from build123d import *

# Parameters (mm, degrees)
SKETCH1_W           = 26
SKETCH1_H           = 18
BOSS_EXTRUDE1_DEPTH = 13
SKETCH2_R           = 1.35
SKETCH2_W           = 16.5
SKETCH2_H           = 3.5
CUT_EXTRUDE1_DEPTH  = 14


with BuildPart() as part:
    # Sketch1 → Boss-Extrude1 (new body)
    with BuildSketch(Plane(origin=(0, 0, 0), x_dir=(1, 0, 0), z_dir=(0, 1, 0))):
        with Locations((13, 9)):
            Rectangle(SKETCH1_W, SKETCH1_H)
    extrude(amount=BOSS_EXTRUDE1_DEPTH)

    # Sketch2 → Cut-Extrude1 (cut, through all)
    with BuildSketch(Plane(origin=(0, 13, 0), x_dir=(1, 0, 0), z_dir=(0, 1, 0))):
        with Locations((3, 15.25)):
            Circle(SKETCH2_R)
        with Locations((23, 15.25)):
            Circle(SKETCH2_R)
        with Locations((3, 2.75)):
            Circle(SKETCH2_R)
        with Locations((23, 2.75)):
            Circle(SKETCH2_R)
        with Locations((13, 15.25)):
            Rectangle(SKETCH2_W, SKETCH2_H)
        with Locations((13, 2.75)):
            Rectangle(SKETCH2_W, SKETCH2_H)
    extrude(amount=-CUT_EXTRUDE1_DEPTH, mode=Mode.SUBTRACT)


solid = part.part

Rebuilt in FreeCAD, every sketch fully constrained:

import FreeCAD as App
import Part
import Sketcher

doc = App.newDocument("Part")
body = doc.addObject("PartDesign::Body", "Body")

# Sketch on XZ plane
sketch1 = body.newObject("Sketcher::SketchObject", "Sketch")
sketch1.AttachmentSupport = (doc.getObject("XZ_Plane"), [""])
sketch1.MapMode = "FlatFace"
sketch1.addGeometry([
    Part.LineSegment(App.Vector(0, -18, 0), App.Vector(0, 0, 0)),
    Part.LineSegment(App.Vector(0, 0, 0), App.Vector(26, 0, 0)),
    Part.LineSegment(App.Vector(26, 0, 0), App.Vector(26, -18, 0)),
    Part.LineSegment(App.Vector(26, -18, 0), App.Vector(0, -18, 0)),
], False)
sketch1.addConstraint([
    Sketcher.Constraint("Coincident", 0, 2, 1, 1),
    Sketcher.Constraint("Coincident", 1, 2, 2, 1),
    Sketcher.Constraint("Coincident", 2, 2, 3, 1),
    Sketcher.Constraint("Coincident", 3, 2, 0, 1),
    Sketcher.Constraint("Vertical", 0),
    Sketcher.Constraint("Horizontal", 1),
    Sketcher.Constraint("Vertical", 2),
    Sketcher.Constraint("Horizontal", 3),
    Sketcher.Constraint("Coincident", 0, 2, -1, 1),
    Sketcher.Constraint("DistanceX", 1, 1, 1, 2, 26.0),
    Sketcher.Constraint("DistanceY", 0, 1, 0, 2, 18.0),
])
pad1 = body.newObject("PartDesign::Pad", "Pad")
pad1.Profile = sketch1
pad1.Length = 13
pad1.Reversed = True

# Sketch on XZ plane
sketch2 = body.newObject("Sketcher::SketchObject", "Sketch001")
sketch2.AttachmentSupport = (doc.getObject("XZ_Plane"), [""])
sketch2.MapMode = "FlatFace"
sketch2.AttachmentOffset = App.Placement(App.Vector(0, 0, -13), App.Rotation())
sketch2.addGeometry([
    Part.Circle(App.Vector(3, -15.25, 0), App.Vector(0, 0, 1), 1.35),  # 0
    Part.Circle(App.Vector(23, -15.25, 0), App.Vector(0, 0, 1), 1.35),  # 1
    Part.Circle(App.Vector(3, -2.75, 0), App.Vector(0, 0, 1), 1.35),  # 2
    Part.Circle(App.Vector(23, -2.75, 0), App.Vector(0, 0, 1), 1.35),  # 3
    Part.LineSegment(App.Vector(4.75, -17, 0), App.Vector(4.75, -13.5, 0)),  # 4
    Part.LineSegment(App.Vector(4.75, -13.5, 0), App.Vector(21.25, -13.5, 0)),  # 5
    Part.LineSegment(App.Vector(21.25, -13.5, 0), App.Vector(21.25, -17, 0)),  # 6
    Part.LineSegment(App.Vector(21.25, -17, 0), App.Vector(4.75, -17, 0)),  # 7
    Part.LineSegment(App.Vector(4.75, -4.5, 0), App.Vector(4.75, -1, 0)),  # 8
    Part.LineSegment(App.Vector(4.75, -1, 0), App.Vector(21.25, -1, 0)),  # 9
    Part.LineSegment(App.Vector(21.25, -1, 0), App.Vector(21.25, -4.5, 0)),  # 10
    Part.LineSegment(App.Vector(21.25, -4.5, 0), App.Vector(4.75, -4.5, 0)),  # 11
], False)
sketch2.addConstraint([
    Sketcher.Constraint("Coincident", 4, 2, 5, 1),
    Sketcher.Constraint("Coincident", 5, 2, 6, 1),
    Sketcher.Constraint("Coincident", 6, 2, 7, 1),
    Sketcher.Constraint("Coincident", 7, 2, 4, 1),
    Sketcher.Constraint("Coincident", 8, 2, 9, 1),
    Sketcher.Constraint("Coincident", 9, 2, 10, 1),
    Sketcher.Constraint("Coincident", 10, 2, 11, 1),
    Sketcher.Constraint("Coincident", 11, 2, 8, 1),
    Sketcher.Constraint("Vertical", 4),
    Sketcher.Constraint("Horizontal", 5),
    Sketcher.Constraint("Vertical", 6),
    Sketcher.Constraint("Horizontal", 7),
    Sketcher.Constraint("Vertical", 8),
    Sketcher.Constraint("Horizontal", 9),
    Sketcher.Constraint("Vertical", 10),
    Sketcher.Constraint("Horizontal", 11),
    Sketcher.Constraint("Equal", 0, 1),
    Sketcher.Constraint("Equal", 1, 2),
    Sketcher.Constraint("Equal", 2, 3),
    Sketcher.Constraint("Horizontal", 0, 3, 1, 3),
    Sketcher.Constraint("Horizontal", 2, 3, 3, 3),
    Sketcher.Constraint("Vertical", 0, 3, 2, 3),
    Sketcher.Constraint("Vertical", 1, 3, 3, 3),
    Sketcher.Constraint("Vertical", 7, 2, 8, 2),
    Sketcher.Constraint("Vertical", 6, 2, 9, 2),
    Sketcher.Constraint("Equal", 6, 8),
    Sketcher.Constraint("Diameter", 0, 2.7),
    Sketcher.Constraint("DistanceX", 5, 1, 5, 2, 16.5),
    Sketcher.Constraint("DistanceY", 4, 1, 4, 2, 3.5),
    Sketcher.Constraint("DistanceX", -1, 1, 0, 3, 3.0),
    Sketcher.Constraint("DistanceX", -1, 1, 1, 3, 23.0),
    Sketcher.Constraint("DistanceY", 6, 2, -1, 1, 17.0),
    Sketcher.Constraint("DistanceY", 8, 2, -1, 1, 1.0),
    Sketcher.Constraint("DistanceY", 0, 3, 2, 3, 12.5),
    Sketcher.Constraint("DistanceY", 0, 3, -1, 1, 15.25),
    Sketcher.Constraint("DistanceX", -1, 1, 4, 2, 4.75),
])
pocket1 = body.newObject("PartDesign::Pocket", "Pocket")
pocket1.Profile = sketch2
pocket1.Type = "ThroughAll"
pocket1.Reversed = True

doc.recompute()
